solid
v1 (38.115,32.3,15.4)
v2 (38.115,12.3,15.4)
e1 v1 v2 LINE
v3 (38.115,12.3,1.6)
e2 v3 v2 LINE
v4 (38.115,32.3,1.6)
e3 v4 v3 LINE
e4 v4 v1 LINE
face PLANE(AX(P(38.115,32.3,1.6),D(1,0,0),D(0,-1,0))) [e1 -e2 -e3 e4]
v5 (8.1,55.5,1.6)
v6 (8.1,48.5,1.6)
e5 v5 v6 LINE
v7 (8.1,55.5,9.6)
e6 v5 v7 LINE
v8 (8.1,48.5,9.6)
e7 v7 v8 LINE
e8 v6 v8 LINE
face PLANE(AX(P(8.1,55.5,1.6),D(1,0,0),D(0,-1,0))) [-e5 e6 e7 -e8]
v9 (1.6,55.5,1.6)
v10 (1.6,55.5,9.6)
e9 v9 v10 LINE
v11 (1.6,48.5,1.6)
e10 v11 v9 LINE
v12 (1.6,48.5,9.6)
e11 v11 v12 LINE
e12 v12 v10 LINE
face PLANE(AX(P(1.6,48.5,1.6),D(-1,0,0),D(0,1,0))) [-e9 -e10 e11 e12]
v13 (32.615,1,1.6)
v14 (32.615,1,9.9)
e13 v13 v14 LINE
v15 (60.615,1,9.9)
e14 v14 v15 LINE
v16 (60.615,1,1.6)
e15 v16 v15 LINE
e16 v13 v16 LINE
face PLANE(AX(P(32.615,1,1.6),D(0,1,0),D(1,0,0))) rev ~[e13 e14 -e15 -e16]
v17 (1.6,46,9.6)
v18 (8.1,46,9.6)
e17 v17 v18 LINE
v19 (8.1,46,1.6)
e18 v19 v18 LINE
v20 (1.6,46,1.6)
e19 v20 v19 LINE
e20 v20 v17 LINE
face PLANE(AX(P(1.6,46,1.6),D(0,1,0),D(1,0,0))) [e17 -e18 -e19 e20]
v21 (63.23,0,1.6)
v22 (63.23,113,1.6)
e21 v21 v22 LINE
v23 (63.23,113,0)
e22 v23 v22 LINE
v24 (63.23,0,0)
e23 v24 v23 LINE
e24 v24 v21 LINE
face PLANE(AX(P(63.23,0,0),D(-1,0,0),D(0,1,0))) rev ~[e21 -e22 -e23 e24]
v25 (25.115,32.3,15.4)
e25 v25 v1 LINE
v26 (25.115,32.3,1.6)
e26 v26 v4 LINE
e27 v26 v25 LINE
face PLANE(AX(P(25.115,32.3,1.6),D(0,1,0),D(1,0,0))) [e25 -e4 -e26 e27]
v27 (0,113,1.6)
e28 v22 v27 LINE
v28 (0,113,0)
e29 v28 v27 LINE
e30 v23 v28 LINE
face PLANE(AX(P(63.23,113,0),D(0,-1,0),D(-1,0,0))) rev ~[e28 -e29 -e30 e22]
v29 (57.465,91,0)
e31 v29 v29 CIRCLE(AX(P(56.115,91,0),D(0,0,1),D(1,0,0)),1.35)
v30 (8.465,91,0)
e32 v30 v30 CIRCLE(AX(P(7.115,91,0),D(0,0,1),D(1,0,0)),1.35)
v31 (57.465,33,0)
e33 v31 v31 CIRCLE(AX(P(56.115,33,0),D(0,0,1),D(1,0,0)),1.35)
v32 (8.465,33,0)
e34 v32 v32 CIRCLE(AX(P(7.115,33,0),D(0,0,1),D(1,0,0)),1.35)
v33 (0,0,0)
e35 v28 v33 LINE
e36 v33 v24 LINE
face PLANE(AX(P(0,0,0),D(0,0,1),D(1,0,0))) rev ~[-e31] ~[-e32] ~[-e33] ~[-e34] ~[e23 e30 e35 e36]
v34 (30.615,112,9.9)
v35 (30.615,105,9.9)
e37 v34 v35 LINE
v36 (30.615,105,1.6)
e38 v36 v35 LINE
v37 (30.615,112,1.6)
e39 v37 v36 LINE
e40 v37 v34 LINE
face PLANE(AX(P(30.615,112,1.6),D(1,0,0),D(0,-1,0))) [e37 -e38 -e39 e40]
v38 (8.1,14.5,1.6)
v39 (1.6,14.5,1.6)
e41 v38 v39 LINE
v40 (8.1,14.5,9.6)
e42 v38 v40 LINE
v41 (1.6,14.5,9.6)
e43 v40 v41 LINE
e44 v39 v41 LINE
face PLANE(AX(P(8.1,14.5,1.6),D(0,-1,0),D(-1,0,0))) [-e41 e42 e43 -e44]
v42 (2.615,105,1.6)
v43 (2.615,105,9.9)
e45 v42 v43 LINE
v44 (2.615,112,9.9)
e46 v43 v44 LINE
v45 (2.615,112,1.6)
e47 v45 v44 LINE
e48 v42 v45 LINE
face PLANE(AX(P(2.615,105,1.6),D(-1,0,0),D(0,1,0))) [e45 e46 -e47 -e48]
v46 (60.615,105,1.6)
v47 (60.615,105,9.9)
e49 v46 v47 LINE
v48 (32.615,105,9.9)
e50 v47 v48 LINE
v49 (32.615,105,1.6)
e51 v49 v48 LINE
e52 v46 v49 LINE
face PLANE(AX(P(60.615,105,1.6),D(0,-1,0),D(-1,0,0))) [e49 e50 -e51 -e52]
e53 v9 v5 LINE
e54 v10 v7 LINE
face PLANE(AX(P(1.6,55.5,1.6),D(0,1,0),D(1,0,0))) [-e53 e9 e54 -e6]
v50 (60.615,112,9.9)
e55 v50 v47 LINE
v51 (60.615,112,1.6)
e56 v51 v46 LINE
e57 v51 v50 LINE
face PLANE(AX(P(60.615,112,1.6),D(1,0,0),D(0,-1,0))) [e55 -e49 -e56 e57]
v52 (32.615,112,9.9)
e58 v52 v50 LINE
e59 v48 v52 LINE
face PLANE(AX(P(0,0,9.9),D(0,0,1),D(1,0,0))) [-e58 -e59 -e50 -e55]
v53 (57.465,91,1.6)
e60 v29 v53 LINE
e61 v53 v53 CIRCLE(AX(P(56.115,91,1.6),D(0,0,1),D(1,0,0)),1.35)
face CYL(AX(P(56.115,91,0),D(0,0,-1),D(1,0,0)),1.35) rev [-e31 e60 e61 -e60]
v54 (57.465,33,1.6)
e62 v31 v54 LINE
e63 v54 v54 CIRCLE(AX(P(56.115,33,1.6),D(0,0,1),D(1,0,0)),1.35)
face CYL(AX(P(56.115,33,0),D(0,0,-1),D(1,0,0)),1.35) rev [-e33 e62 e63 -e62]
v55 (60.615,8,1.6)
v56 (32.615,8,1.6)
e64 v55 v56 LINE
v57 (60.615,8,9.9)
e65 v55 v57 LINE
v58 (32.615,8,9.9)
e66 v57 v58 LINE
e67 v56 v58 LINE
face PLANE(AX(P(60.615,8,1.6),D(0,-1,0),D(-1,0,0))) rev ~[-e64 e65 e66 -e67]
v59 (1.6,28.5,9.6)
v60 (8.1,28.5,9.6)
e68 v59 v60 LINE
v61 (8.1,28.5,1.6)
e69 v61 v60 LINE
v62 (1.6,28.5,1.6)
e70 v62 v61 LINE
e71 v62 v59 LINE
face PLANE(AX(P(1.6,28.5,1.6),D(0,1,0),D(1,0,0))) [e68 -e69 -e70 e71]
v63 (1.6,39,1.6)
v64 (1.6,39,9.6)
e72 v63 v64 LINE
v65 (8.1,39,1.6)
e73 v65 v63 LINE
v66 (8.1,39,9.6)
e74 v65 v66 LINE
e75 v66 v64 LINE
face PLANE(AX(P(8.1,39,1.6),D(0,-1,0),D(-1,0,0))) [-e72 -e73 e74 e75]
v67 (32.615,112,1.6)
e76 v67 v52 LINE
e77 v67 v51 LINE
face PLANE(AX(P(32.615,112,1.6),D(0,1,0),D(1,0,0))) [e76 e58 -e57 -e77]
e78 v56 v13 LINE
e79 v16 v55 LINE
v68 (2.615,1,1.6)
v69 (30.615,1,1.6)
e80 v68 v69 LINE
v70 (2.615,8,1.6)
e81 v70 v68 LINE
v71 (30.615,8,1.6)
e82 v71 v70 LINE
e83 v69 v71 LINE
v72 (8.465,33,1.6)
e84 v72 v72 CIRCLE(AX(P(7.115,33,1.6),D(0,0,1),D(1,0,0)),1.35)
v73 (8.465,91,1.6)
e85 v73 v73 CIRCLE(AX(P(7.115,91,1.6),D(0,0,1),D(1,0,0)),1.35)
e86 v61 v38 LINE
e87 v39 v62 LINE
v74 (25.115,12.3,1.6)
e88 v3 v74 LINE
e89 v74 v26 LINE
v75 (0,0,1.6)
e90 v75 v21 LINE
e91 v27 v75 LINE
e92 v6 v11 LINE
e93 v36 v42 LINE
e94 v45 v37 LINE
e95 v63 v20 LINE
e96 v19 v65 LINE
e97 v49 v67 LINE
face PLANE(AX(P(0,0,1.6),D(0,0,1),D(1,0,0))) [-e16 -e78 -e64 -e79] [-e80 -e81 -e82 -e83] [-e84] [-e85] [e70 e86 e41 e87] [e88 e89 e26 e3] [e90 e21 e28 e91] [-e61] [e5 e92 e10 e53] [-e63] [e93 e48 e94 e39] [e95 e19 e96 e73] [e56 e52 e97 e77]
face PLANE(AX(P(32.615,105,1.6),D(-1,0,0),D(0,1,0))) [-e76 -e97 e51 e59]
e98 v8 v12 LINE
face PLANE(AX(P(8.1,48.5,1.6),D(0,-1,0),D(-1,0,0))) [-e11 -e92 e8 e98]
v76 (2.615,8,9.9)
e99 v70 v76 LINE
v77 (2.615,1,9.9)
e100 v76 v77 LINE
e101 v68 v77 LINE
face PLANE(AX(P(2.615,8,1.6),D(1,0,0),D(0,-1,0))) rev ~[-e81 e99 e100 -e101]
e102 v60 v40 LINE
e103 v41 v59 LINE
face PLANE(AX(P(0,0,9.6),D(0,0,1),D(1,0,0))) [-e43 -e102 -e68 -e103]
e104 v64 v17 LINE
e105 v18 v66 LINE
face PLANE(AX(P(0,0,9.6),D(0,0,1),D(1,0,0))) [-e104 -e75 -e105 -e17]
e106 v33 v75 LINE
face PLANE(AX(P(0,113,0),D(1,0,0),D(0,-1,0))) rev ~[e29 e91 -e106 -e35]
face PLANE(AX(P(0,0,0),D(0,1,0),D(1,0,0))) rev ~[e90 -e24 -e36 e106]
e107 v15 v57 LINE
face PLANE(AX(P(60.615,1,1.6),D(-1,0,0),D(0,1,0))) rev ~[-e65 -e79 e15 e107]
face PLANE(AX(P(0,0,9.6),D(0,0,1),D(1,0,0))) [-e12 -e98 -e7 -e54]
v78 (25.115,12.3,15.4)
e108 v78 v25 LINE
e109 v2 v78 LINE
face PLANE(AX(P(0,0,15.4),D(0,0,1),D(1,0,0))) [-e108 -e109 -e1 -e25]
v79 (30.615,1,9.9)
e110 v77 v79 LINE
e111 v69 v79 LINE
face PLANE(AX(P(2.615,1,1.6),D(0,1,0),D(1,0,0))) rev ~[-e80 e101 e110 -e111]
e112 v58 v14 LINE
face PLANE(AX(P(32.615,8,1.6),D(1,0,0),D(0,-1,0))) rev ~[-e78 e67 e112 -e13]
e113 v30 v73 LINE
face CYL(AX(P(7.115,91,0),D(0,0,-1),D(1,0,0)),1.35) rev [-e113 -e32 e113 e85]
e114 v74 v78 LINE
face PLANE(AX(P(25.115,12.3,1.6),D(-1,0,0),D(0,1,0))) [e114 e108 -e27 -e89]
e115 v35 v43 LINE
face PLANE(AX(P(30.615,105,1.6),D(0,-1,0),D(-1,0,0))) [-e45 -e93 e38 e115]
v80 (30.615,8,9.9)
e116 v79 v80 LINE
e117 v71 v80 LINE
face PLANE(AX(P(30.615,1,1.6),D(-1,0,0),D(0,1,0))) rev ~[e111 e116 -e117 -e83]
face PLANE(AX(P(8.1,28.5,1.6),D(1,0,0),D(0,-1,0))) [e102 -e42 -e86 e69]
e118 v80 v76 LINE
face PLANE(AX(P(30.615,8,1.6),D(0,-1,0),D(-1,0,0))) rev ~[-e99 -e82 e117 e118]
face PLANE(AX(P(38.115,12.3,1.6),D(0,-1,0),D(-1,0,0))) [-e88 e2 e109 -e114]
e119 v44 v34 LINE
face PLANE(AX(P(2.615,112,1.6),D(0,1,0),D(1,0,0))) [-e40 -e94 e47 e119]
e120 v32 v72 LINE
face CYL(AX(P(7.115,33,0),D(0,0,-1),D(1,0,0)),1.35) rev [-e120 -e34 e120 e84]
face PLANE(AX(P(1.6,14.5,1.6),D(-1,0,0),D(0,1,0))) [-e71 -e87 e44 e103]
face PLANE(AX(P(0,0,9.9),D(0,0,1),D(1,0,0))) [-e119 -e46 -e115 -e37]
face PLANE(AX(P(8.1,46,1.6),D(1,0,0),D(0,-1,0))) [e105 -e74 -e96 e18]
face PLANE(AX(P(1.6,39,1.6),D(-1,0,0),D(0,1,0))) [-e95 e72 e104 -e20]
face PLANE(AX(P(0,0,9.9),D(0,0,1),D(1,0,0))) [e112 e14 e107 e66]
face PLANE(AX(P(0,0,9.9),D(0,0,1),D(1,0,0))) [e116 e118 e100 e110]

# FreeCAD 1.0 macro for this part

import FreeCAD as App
import Part
import Sketcher
from FreeCAD import Vector
Q = App.Units.Quantity


def add_polygon(sketch, points):
    """Adds a closed chain of lines whose ends are joined by coincident constraints."""
    first, n = sketch.GeometryCount, len(points)
    for a, b in zip(points, points[1:] + points[:1]):
        sketch.addGeometry(Part.LineSegment(App.Vector(*a, 0), App.Vector(*b, 0)), False)
    for i in range(n):
        sketch.addConstraint(Sketcher.Constraint("Coincident", first + i, 2, first + (i + 1) % n, 1))

doc = App.newDocument("Part")
body = doc.addObject("PartDesign::Body", "Body")

sketch1 = body.newObject("Sketcher::SketchObject", "Sketch")
sketch1.AttachmentSupport = (doc.getObject("XY_Plane"), [""])
sketch1.MapMode = "FlatFace"
add_polygon(sketch1, [(0, 113), (0, 0), (63.2, 0), (63.2, 113)])
sketch1.addGeometry(Part.Circle(Vector(7.1, 33, 0), Vector(0, 0, 1), 1.4), False)
sketch1.addGeometry(Part.Circle(Vector(56.1, 33, 0), Vector(0, 0, 1), 1.4), False)
sketch1.addGeometry(Part.Circle(Vector(7.1, 91, 0), Vector(0, 0, 1), 1.4), False)
sketch1.addGeometry(Part.Circle(Vector(56.1, 91, 0), Vector(0, 0, 1), 1.4), False)
sketch1.addConstraint([
    Sketcher.Constraint("Vertical", 0),
    Sketcher.Constraint("Horizontal", 1),
    Sketcher.Constraint("Vertical", 2),
    Sketcher.Constraint("Horizontal", 3),
    Sketcher.Constraint("Coincident", 0, 2, -1, 1),
    Sketcher.Constraint("Equal", 4, 5),
    Sketcher.Constraint("Equal", 5, 6),
    Sketcher.Constraint("Equal", 6, 7),
    Sketcher.Constraint("Horizontal", 4, 3, 5, 3),
    Sketcher.Constraint("Horizontal", 6, 3, 7, 3),
    Sketcher.Constraint("Vertical", 4, 3, 6, 3),
    Sketcher.Constraint("Vertical", 5, 3, 7, 3),
    Sketcher.Constraint("Diameter", 4, Q("2.7 mm")),
    Sketcher.Constraint("DistanceY", 0, 2, 0, 1, Q("113 mm")),
    Sketcher.Constraint("DistanceX", 4, 3, 5, 3, Q("49 mm")),
    Sketcher.Constraint("DistanceY", 4, 3, 6, 3, Q("58 mm")),
    Sketcher.Constraint("DistanceY", 7, 3, 2, 2, Q("22 mm")),
    Sketcher.Constraint("DistanceX", 1, 1, 1, 2, Q("63.23 mm")),
    Sketcher.Constraint("DistanceX", -1, 1, 4, 3, Q("7.115 mm")),
])
pad1 = body.newObject("PartDesign::Pad", "Pad")
pad1.Profile = sketch1
pad1.Length = 1.6

sketch2 = body.newObject("Sketcher::SketchObject", "Sketch001")
sketch2.AttachmentSupport = (doc.getObject("XY_Plane"), [""])
sketch2.MapMode = "FlatFace"
sketch2.AttachmentOffset = App.Placement(Vector(0, 0, 1.6), App.Rotation())
add_polygon(sketch2, [(31, 112), (3, 112), (3, 105), (31, 105)])
add_polygon(sketch2, [(61, 112), (33, 112), (33, 105), (61, 105)])
add_polygon(sketch2, [(3, 8), (3, 1), (31, 1), (31, 8)])
add_polygon(sketch2, [(33, 8), (33, 1), (61, 1), (61, 8)])
sketch2.addConstraint([
    Sketcher.Constraint("Horizontal", 0),
    Sketcher.Constraint("Vertical", 1),
    Sketcher.Constraint("Horizontal", 2),
    Sketcher.Constraint("Vertical", 3),
    Sketcher.Constraint("Horizontal", 4),
    Sketcher.Constraint("Vertical", 5),
    Sketcher.Constraint("Horizontal", 6),
    Sketcher.Constraint("Vertical", 7),
    Sketcher.Constraint("Vertical", 8),
    Sketcher.Constraint("Horizontal", 9),
    Sketcher.Constraint("Vertical", 10),
    Sketcher.Constraint("Horizontal", 11),
    Sketcher.Constraint("Vertical", 12),
    Sketcher.Constraint("Horizontal", 13),
    Sketcher.Constraint("Vertical", 14),
    Sketcher.Constraint("Horizontal", 15),
    Sketcher.Constraint("Horizontal", 3, 2, 4, 2),
    Sketcher.Constraint("Horizontal", 2, 2, 5, 2),
    Sketcher.Constraint("Horizontal", 9, 2, 12, 2),
    Sketcher.Constraint("Horizontal", 11, 2, 14, 2),
    Sketcher.Constraint("Vertical", 1, 2, 8, 2),
    Sketcher.Constraint("Vertical", 3, 2, 9, 2),
    Sketcher.Constraint("Vertical", 5, 2, 12, 2),
    Sketcher.Constraint("Vertical", 7, 2, 13, 2),
    Sketcher.Constraint("Equal", 2, 4),
    Sketcher.Constraint("Equal", 7, 8),
    Sketcher.Constraint("DistanceX", 0, 2, 0, 1, Q("28 mm")),
    Sketcher.Constraint("DistanceY", 1, 2, 1, 1, Q("7 mm")),
    Sketcher.Constraint("DistanceY", -1, 1, 8, 2, Q("1 mm")),
    Sketcher.Constraint("DistanceX", 3, 2, 4, 2, Q("2 mm")),
    Sketcher.Constraint("DistanceX", -1, 1, 0, 2, Q("2.615 mm")),
    Sketcher.Constraint("DistanceY", -1, 1, 0, 2, Q("112 mm")),
])
pad2 = body.newObject("PartDesign::Pad", "Pad001")
pad2.Profile = sketch2
pad2.Length = 8.3

sketch3 = body.newObject("Sketcher::SketchObject", "Sketch002")
sketch3.AttachmentSupport = (doc.getObject("XY_Plane"), [""])
sketch3.MapMode = "FlatFace"
sketch3.AttachmentOffset = App.Placement(Vector(0, 0, 1.6), App.Rotation())
add_polygon(sketch3, [(8, 28), (2, 28), (2, 14), (8, 14)])
add_polygon(sketch3, [(8, 56), (2, 56), (2, 48), (8, 48)])
add_polygon(sketch3, [(8, 46), (2, 46), (2, 39), (8, 39)])
sketch3.addConstraint([
    Sketcher.Constraint("Horizontal", 0),
    Sketcher.Constraint("Vertical", 1),
    Sketcher.Constraint("Horizontal", 2),
    Sketcher.Constraint("Vertical", 3),
    Sketcher.Constraint("Horizontal", 4),
    Sketcher.Constraint("Vertical", 5),
    Sketcher.Constraint("Horizontal", 6),
    Sketcher.Constraint("Vertical", 7),
    Sketcher.Constraint("Horizontal", 8),
    Sketcher.Constraint("Vertical", 9),
    Sketcher.Constraint("Horizontal", 10),
    Sketcher.Constraint("Vertical", 11),
    Sketcher.Constraint("Vertical", 1, 2, 4, 2),
    Sketcher.Constraint("Vertical", 3, 2, 6, 2),
    Sketcher.Constraint("Vertical", 5, 2, 8, 2),
    Sketcher.Constraint("Vertical", 7, 2, 10, 2),
    Sketcher.Constraint("Equal", 7, 9),
    Sketcher.Constraint("DistanceY", 1, 2, 1, 1, Q("14 mm")),
    Sketcher.Constraint("DistanceY", 5, 2, 5, 1, Q("7 mm")),
    Sketcher.Constraint("DistanceX", 0, 2, 0, 1, Q("6.5 mm")),
    Sketcher.Constraint("DistanceX", -1, 1, 0, 2, Q("1.6 mm")),
    Sketcher.Constraint("DistanceY", -1, 1, 0, 2, Q("28.5 mm")),
    Sketcher.Constraint("DistanceY", 8, 2, 5, 2, Q("2.5 mm")),
    Sketcher.Constraint("DistanceY", 0, 2, 9, 2, Q("10.5 mm")),
])
pad3 = body.newObject("PartDesign::Pad", "Pad002")
pad3.Profile = sketch3
pad3.Length = 8

sketch4 = body.newObject("Sketcher::SketchObject", "Sketch003")
sketch4.AttachmentSupport = (doc.getObject("XY_Plane"), [""])
sketch4.MapMode = "FlatFace"
sketch4.AttachmentOffset = App.Placement(Vector(0, 0, 1.6), App.Rotation())
add_polygon(sketch4, [(38, 32), (25, 32), (25, 12), (38, 12)])
sketch4.addConstraint([
    Sketcher.Constraint("Horizontal", 0),
    Sketcher.Constraint("Vertical", 1),
    Sketcher.Constraint("Horizontal", 2),
    Sketcher.Constraint("Vertical", 3),
    Sketcher.Constraint("DistanceX", 0, 2, 0, 1, Q("13 mm")),
    Sketcher.Constraint("DistanceY", 1, 2, 1, 1, Q("20 mm")),
    Sketcher.Constraint("DistanceY", -1, 1, 1, 2, Q("12.3 mm")),
    Sketcher.Constraint("DistanceX", -1, 1, 0, 2, Q("25.115 mm")),
])
pad4 = body.newObject("PartDesign::Pad", "Pad003")
pad4.Profile = sketch4
pad4.Length = 13.8

doc.recompute()
